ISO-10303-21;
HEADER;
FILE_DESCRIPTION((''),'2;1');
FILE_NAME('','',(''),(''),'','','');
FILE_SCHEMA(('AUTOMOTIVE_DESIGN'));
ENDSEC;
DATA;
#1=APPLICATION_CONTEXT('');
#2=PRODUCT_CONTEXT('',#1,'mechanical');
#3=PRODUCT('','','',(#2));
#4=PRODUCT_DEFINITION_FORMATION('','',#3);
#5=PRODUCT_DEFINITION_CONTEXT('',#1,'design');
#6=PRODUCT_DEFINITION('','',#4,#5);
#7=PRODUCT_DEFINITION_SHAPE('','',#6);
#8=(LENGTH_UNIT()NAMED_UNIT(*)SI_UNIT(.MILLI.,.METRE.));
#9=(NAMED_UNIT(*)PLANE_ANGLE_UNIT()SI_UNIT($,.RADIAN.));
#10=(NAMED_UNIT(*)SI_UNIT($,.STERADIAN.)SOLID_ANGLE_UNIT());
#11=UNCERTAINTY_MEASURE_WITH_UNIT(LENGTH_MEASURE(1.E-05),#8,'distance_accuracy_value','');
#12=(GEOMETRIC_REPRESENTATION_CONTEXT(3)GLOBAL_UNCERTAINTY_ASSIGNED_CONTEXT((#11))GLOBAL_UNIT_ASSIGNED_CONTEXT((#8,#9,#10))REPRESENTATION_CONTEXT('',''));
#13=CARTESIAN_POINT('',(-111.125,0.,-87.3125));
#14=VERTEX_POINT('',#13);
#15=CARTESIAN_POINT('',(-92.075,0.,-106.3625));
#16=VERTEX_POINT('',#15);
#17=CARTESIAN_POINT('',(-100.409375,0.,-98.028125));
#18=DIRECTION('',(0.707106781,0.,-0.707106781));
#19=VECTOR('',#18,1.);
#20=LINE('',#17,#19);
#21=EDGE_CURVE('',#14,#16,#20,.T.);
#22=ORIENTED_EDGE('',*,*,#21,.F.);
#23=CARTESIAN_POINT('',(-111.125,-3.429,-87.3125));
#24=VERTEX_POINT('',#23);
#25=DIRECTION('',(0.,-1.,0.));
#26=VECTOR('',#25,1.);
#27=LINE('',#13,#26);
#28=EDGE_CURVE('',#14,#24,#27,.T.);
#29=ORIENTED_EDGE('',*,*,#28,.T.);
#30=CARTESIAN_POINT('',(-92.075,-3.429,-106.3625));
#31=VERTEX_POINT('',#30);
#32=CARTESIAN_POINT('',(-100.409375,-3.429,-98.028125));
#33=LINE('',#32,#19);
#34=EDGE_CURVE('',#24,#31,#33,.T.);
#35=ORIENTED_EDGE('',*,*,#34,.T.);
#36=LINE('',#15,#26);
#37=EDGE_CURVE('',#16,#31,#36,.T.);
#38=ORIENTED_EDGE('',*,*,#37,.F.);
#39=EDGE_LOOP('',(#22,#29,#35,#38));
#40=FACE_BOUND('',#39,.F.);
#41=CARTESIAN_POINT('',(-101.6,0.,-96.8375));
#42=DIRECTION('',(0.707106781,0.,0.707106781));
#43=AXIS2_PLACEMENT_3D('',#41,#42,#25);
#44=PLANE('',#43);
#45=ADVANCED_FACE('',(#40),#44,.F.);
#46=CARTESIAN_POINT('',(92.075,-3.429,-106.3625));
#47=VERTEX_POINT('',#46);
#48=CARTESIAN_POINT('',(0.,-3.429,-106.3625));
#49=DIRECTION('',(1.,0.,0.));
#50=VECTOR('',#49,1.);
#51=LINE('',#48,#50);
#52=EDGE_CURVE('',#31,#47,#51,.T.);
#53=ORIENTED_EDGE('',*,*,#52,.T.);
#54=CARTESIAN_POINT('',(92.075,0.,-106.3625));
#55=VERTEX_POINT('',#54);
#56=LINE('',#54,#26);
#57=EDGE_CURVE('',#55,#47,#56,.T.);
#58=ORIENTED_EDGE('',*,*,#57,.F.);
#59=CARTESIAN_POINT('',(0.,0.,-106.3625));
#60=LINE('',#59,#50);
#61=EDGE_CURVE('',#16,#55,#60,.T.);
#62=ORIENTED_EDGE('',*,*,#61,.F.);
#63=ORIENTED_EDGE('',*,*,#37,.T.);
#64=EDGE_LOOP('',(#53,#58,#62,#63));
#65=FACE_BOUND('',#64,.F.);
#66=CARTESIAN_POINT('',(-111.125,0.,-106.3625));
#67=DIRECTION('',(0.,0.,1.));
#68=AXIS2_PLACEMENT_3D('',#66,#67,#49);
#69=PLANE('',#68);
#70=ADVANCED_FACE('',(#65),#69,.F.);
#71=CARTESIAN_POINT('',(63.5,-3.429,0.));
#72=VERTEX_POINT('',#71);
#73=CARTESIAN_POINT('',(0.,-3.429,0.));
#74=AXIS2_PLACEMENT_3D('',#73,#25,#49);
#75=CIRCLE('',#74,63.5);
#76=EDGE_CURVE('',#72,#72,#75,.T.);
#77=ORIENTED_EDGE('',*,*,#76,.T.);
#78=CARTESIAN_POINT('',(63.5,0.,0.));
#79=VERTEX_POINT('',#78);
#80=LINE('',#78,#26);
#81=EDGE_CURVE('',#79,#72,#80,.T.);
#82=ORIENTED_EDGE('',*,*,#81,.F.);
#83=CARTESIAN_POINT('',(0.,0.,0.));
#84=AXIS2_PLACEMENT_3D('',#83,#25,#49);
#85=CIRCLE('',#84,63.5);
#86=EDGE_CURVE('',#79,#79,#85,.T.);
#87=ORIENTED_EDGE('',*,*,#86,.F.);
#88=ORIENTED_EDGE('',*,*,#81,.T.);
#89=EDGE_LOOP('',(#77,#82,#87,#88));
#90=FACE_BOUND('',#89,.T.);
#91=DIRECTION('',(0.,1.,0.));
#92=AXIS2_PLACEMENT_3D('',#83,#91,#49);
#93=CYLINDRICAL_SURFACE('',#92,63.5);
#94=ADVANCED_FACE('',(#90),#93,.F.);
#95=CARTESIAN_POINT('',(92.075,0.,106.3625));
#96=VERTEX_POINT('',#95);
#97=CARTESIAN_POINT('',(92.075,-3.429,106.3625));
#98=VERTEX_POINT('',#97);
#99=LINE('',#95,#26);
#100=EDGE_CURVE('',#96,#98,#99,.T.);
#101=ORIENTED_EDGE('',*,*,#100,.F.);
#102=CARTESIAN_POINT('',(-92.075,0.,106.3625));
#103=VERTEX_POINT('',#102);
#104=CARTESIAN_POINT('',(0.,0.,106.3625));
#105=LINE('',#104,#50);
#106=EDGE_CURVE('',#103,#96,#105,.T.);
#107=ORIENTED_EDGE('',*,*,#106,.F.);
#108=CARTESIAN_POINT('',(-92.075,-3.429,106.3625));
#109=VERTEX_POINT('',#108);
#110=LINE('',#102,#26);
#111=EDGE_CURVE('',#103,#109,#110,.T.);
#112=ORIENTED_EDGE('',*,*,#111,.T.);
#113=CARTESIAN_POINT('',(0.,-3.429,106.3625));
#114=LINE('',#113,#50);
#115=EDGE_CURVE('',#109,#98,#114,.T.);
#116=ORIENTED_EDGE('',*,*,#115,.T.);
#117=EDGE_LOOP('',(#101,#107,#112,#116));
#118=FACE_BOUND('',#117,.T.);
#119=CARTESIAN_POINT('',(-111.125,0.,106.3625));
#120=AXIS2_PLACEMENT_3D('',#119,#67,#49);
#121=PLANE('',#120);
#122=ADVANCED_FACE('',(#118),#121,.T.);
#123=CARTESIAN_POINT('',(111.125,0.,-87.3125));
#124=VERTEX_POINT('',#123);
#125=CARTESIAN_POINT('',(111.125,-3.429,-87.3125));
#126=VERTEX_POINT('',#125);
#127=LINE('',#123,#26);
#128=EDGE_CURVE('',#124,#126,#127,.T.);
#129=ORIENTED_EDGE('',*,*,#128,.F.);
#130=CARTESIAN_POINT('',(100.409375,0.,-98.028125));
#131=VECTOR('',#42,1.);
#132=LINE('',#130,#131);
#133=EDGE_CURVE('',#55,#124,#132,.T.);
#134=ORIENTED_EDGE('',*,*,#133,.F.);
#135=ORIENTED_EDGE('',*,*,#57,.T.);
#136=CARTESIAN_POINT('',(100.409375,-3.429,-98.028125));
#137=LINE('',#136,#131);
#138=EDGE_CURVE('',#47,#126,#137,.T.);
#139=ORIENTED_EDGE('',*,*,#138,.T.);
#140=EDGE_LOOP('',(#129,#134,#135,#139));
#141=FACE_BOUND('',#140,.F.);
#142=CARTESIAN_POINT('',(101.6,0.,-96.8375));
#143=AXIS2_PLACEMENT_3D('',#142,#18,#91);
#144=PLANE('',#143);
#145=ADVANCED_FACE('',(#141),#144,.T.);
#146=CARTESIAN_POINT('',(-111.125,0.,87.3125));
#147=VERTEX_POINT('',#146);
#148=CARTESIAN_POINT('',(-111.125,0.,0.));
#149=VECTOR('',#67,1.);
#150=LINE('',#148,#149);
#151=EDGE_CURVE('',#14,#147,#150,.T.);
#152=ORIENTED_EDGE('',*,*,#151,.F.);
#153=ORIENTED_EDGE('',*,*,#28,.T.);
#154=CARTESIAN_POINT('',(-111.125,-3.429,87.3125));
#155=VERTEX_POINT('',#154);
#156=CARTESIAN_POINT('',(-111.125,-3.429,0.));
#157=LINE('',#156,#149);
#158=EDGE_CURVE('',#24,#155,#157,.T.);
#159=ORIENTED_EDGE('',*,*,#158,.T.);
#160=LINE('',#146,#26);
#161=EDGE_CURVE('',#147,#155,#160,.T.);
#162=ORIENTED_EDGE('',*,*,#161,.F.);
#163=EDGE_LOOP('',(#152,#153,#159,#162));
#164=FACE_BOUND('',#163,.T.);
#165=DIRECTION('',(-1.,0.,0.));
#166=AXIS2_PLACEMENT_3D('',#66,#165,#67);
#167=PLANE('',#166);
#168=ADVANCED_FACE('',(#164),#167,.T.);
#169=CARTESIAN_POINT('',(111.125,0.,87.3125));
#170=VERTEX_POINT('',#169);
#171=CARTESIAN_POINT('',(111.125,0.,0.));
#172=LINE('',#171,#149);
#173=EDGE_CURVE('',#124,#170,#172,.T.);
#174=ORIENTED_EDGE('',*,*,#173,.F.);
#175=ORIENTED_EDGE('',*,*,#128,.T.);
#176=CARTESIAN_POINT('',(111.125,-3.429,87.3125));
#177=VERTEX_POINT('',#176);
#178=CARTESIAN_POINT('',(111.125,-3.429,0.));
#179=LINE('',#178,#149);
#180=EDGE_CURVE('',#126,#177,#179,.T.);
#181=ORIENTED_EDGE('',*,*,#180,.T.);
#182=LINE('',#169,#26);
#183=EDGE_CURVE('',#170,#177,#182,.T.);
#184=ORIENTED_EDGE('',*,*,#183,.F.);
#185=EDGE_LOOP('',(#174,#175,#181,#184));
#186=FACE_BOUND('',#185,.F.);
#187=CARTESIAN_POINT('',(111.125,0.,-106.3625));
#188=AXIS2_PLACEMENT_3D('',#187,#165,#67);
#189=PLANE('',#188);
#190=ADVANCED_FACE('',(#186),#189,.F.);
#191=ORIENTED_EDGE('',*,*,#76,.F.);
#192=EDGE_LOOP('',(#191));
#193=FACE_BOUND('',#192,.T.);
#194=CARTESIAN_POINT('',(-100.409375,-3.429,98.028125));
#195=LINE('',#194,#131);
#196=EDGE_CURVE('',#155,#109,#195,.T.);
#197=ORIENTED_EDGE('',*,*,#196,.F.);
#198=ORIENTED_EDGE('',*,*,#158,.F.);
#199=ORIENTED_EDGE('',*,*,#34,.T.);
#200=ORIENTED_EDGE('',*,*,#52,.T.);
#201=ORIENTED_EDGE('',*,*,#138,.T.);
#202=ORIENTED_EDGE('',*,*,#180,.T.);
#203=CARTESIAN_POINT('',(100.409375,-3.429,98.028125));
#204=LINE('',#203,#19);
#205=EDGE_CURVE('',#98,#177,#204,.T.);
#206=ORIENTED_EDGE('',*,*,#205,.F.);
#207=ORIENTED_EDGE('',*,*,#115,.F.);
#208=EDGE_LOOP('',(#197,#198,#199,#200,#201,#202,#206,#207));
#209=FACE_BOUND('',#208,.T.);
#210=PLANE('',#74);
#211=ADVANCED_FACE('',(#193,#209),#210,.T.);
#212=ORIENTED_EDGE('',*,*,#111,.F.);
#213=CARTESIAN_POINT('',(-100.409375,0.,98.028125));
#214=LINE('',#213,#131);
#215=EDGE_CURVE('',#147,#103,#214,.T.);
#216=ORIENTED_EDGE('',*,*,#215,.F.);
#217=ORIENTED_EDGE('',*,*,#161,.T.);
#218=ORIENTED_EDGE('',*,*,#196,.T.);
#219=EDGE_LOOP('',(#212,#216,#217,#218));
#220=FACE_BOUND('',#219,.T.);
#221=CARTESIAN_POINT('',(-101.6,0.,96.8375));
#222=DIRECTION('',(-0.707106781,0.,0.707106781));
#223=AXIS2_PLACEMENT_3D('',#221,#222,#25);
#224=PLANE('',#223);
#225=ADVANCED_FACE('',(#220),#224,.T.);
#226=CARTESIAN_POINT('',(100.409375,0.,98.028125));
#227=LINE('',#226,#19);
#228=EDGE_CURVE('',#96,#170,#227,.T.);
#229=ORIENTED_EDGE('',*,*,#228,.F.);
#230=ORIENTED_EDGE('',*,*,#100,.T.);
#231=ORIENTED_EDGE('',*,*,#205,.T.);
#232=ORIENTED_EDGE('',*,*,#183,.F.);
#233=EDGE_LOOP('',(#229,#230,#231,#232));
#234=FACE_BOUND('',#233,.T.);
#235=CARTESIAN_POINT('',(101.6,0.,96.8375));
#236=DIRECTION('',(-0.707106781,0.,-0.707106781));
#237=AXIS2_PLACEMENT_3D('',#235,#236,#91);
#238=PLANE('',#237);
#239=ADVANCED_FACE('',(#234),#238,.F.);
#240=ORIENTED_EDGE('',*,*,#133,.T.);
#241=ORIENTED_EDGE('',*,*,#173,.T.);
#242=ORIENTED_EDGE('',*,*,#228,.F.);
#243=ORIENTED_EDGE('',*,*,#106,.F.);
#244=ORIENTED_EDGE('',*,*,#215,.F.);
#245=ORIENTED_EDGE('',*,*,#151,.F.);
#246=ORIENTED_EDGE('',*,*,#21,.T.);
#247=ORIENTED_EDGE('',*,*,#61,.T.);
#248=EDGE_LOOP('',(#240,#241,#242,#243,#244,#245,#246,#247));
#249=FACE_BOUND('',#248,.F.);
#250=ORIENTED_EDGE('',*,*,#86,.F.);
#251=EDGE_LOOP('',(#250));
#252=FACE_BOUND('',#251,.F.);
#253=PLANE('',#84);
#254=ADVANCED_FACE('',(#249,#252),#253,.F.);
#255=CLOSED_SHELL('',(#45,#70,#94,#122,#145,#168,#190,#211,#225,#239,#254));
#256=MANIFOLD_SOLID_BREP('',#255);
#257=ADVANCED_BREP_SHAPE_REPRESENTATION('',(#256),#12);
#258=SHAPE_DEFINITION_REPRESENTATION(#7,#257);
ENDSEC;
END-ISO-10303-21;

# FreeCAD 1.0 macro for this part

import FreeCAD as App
import Part
import Sketcher
Q = App.Units.Quantity


def edges_at(feature, points):
    """Names of the edges that pass closest to the given points."""
    edges = feature.Shape.Edges
    near = lambda p: min(range(len(edges)), key=lambda i: edges[i].distToShape(Part.Vertex(*p))[0])
    return sorted({f"Edge{near(p) + 1}" for p in points})

doc = App.newDocument("Part")
body = doc.addObject("PartDesign::Body", "Body")

# Sketch on XZ plane
sketch1 = doc.addObject("Sketcher::SketchObject", "Sketch")
body.addObject(sketch1)
sketch1.AttachmentSupport = (doc.XZ_Plane, [""])
sketch1.MapMode = "FlatFace"
sketch1.addGeometry(Part.LineSegment(App.Vector(-111, 106, 0), App.Vector(-111, -106, 0)), False)
sketch1.addGeometry(Part.LineSegment(App.Vector(-111, -106, 0), App.Vector(111, -106, 0)), False)
sketch1.addGeometry(Part.LineSegment(App.Vector(111, -106, 0), App.Vector(111, 106, 0)), False)
sketch1.addGeometry(Part.LineSegment(App.Vector(111, 106, 0), App.Vector(-111, 106, 0)), False)
sketch1.addGeometry(Part.Circle(App.Vector(0, 0, 0), App.Vector(0, 0, 1), 64), False)
sketch1.addConstraint(Sketcher.Constraint("Coincident", 0, 2, 1, 1))
sketch1.addConstraint(Sketcher.Constraint("Coincident", 1, 2, 2, 1))
sketch1.addConstraint(Sketcher.Constraint("Coincident", 2, 2, 3, 1))
sketch1.addConstraint(Sketcher.Constraint("Coincident", 3, 2, 0, 1))
sketch1.addConstraint(Sketcher.Constraint("Vertical", 0))
sketch1.addConstraint(Sketcher.Constraint("Horizontal", 1))
sketch1.addConstraint(Sketcher.Constraint("Vertical", 2))
sketch1.addConstraint(Sketcher.Constraint("Horizontal", 3))
sketch1.addConstraint(Sketcher.Constraint("Coincident", 4, 3, -1, 1))
sketch1.addConstraint(Sketcher.Constraint("Symmetric", 0, 2, 2, 2, -1, 1))
sketch1.addConstraint(Sketcher.Constraint("Diameter", 4, Q("5 in")))
sketch1.addConstraint(Sketcher.Constraint("DistanceX", 1, 1, 1, 2, Q("8.75 in")))
sketch1.addConstraint(Sketcher.Constraint("DistanceY", 0, 2, 0, 1, Q("8.375 in")))
pad1 = doc.addObject("PartDesign::Pad", "Pad")
body.addObject(pad1)
pad1.Profile = sketch1
pad1.Length = Q("0.135 in")
doc.recompute()

chamfer = doc.addObject("PartDesign::Chamfer", "Chamfer")
body.addObject(chamfer)
chamfer.Base = (pad1, edges_at(pad1, [
    (-111.125, -1.714, 106.362),
    (111.125, -1.714, 106.362),
    (-111.125, -1.714, -106.362),
    (111.125, -1.714, -106.362),
]))
chamfer.Size = Q("0.75 in")

doc.recompute()
